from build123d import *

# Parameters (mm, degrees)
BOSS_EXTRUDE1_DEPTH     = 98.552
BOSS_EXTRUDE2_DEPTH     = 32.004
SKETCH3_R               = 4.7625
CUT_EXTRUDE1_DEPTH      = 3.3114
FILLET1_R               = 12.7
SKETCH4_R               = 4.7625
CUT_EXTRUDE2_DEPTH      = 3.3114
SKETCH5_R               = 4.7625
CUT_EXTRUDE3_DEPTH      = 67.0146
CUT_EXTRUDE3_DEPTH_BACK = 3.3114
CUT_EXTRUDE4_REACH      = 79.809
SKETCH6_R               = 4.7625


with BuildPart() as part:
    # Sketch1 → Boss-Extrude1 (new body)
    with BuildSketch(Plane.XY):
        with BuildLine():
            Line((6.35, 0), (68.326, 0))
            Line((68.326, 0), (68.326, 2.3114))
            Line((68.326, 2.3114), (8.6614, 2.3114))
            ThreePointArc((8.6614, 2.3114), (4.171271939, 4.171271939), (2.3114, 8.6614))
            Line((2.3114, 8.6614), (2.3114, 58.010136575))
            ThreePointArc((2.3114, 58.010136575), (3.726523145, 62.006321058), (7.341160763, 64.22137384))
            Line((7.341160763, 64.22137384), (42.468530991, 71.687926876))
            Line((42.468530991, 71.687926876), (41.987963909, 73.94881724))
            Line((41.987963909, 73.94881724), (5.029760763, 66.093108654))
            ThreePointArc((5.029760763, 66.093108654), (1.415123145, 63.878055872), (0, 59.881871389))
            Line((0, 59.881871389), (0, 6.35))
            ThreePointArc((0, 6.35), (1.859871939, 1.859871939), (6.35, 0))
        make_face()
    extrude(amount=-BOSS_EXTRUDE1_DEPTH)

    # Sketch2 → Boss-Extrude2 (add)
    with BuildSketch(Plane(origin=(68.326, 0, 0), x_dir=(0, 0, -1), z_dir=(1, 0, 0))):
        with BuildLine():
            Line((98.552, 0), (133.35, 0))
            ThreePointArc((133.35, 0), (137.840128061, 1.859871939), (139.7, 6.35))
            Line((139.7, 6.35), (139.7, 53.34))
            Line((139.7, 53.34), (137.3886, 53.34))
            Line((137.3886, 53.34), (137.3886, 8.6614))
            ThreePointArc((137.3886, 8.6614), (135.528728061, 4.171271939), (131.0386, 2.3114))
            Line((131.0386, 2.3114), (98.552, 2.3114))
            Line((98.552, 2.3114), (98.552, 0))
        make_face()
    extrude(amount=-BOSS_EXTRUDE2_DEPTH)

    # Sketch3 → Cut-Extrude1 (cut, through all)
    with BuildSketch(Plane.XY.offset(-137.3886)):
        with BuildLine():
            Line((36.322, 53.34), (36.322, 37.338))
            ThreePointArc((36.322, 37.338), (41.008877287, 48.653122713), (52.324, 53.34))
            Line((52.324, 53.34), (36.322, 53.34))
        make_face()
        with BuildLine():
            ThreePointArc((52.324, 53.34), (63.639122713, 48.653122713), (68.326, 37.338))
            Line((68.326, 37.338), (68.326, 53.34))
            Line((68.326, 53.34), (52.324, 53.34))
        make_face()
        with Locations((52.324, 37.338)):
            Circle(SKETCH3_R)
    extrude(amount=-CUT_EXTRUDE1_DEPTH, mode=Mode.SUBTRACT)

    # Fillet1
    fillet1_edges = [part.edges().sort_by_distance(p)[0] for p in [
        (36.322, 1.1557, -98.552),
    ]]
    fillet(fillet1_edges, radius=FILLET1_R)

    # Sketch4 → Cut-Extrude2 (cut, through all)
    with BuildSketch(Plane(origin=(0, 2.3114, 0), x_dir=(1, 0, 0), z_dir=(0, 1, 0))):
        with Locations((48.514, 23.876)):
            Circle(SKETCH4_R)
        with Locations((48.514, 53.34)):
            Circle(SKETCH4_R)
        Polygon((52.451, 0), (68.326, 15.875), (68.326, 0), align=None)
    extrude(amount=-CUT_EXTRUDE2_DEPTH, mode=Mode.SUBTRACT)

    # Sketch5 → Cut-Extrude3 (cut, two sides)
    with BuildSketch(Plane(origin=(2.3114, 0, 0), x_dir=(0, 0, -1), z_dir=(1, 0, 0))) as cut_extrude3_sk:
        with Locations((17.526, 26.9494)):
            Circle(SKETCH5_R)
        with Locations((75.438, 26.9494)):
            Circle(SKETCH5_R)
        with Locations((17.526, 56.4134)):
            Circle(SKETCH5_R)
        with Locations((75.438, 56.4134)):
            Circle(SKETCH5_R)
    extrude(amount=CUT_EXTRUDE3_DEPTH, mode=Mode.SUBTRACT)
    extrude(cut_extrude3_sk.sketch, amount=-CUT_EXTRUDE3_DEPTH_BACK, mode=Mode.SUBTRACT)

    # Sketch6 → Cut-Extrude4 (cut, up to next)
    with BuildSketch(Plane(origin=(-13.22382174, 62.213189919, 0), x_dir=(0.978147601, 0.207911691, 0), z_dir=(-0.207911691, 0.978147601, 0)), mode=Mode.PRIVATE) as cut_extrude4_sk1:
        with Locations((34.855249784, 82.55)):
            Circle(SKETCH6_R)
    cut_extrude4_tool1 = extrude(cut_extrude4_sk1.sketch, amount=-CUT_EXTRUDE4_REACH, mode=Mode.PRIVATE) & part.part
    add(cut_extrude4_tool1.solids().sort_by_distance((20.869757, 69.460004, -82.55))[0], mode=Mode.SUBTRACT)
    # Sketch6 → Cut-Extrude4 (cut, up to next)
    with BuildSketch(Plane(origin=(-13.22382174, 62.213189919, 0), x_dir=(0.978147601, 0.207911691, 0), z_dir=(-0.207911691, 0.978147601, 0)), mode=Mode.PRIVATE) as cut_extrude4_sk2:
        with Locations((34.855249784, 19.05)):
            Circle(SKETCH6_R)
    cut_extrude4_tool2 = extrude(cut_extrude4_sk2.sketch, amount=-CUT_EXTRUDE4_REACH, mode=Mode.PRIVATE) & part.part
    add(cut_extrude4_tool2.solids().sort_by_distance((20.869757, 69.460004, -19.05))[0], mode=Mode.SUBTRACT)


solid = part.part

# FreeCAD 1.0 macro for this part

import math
import FreeCAD as App
import Part
import Sketcher
from FreeCAD import Vector
Q = App.Units.Quantity


def edges_at(feature, points):
    """Names of the edges that pass closest to the given points."""
    edges = feature.Shape.Edges
    near = lambda p: min(range(len(edges)), key=lambda i: edges[i].distToShape(Part.Vertex(*p))[0])
    return sorted({f"Edge{near(p) + 1}" for p in points})


def add_polygon(sketch, points):
    """Adds a closed chain of lines whose ends are joined by coincident constraints."""
    first, n = sketch.GeometryCount, len(points)
    for a, b in zip(points, points[1:] + points[:1]):
        sketch.addGeometry(Part.LineSegment(App.Vector(*a, 0), App.Vector(*b, 0)), False)
    for i in range(n):
        sketch.addConstraint(Sketcher.Constraint("Coincident", first + i, 2, first + (i + 1) % n, 1))

doc = App.newDocument("Part")
body = doc.addObject("PartDesign::Body", "Body")

sketch1 = body.newObject("Sketcher::SketchObject", "Sketch")
sketch1.AttachmentSupport = (doc.getObject("XY_Plane"), [""])
sketch1.MapMode = "FlatFace"
sketch1.addGeometry([
    Part.LineSegment(Vector(6.35, 0, 0), Vector(68.326, 0, 0)),
    Part.LineSegment(Vector(68.326, 0, 0), Vector(68.326, 2.3114, 0)),
    Part.LineSegment(Vector(68.326, 2.3114, 0), Vector(8.6614, 2.3114, 0)),
    Part.ArcOfCircle(Part.Circle(Vector(8.6614, 8.6614, 0), Vector(0, 0, 1), 6.35), math.radians(180), math.radians(270)),
    Part.LineSegment(Vector(2.3114, 8.6614, 0), Vector(2.3114, 58.010137, 0)),
    Part.ArcOfCircle(Part.Circle(Vector(8.6614, 58.010137, 0), Vector(0, 0, 1), 6.35), math.radians(102), math.radians(180)),
    Part.LineSegment(Vector(7.341161, 64.221374, 0), Vector(42.468531, 71.687927, 0)),
    Part.LineSegment(Vector(42.468531, 71.687927, 0), Vector(41.987964, 73.948817, 0)),
    Part.LineSegment(Vector(41.987964, 73.948817, 0), Vector(5.029761, 66.093109, 0)),
    Part.ArcOfCircle(Part.Circle(Vector(6.35, 59.881871, 0), Vector(0, 0, 1), 6.35), math.radians(102), math.radians(180)),
    Part.LineSegment(Vector(0, 59.881871, 0), Vector(0, 6.35, 0)),
    Part.ArcOfCircle(Part.Circle(Vector(6.35, 6.35, 0), Vector(0, 0, 1), 6.35), math.radians(180), math.radians(270)),
], False)
sketch1.addConstraint([
    Sketcher.Constraint("Coincident", 0, 2, 1, 1),
    Sketcher.Constraint("Coincident", 1, 2, 2, 1),
    Sketcher.Constraint("Tangent", 2, 2, 3, 2),
    Sketcher.Constraint("Tangent", 3, 1, 4, 1),
    Sketcher.Constraint("Tangent", 4, 2, 5, 2),
    Sketcher.Constraint("Tangent", 5, 1, 6, 1),
    Sketcher.Constraint("Coincident", 6, 2, 7, 1),
    Sketcher.Constraint("Coincident", 7, 2, 8, 1),
    Sketcher.Constraint("Tangent", 8, 2, 9, 1),
    Sketcher.Constraint("Tangent", 9, 2, 10, 1),
    Sketcher.Constraint("Tangent", 10, 2, 11, 1),
    Sketcher.Constraint("Tangent", 11, 2, 0, 1),
    Sketcher.Constraint("Horizontal", 0),
    Sketcher.Constraint("Vertical", 1),
    Sketcher.Constraint("Horizontal", 2),
    Sketcher.Constraint("Vertical", 4),
    Sketcher.Constraint("Vertical", 10),
    Sketcher.Constraint("Equal", 3, 5),
    Sketcher.Constraint("Equal", 5, 9),
    Sketcher.Constraint("Equal", 9, 11),
    Sketcher.Constraint("PointOnObject", 0, 2, -1),
    Sketcher.Constraint("PointOnObject", 9, 2, -2),
    Sketcher.Constraint("Perpendicular", 6, 7),
    Sketcher.Constraint("Perpendicular", 7, 8),
    Sketcher.Constraint("Radius", 3, Q("0.25 in")),
    Sketcher.Constraint("Angle", 6, Q("12 deg")),
    Sketcher.Constraint("DistanceX", 0, 1, 0, 2, Q("2.44 in")),
    Sketcher.Constraint("DistanceX", 2, 2, 2, 1, Q("2.349 in")),
    Sketcher.Constraint("DistanceY", 1, 1, 1, 2, Q("0.091 in")),
    Sketcher.Constraint("Distance", 7, Q("0.091 in")),
    Sketcher.Constraint("DistanceY", 10, 2, 10, 1, 53.531871),
    Sketcher.Constraint("Distance", 8, 37.783871),
])
pad1 = body.newObject("PartDesign::Pad", "Pad")
pad1.Profile = sketch1
pad1.Length = Q("3.88 in")
pad1.Reversed = True

sketch2 = body.newObject("Sketcher::SketchObject", "Sketch001")
sketch2.AttachmentSupport = (doc.getObject("YZ_Plane"), [""])
sketch2.MapMode = "FlatFace"
sketch2.AttachmentOffset = App.Placement(Vector(0, 0, 2.69 * 25.4), App.Rotation())
sketch2.addGeometry([
    Part.LineSegment(Vector(0, -98.552, 0), Vector(0, -133.35, 0)),
    Part.ArcOfCircle(Part.Circle(Vector(6.35, -133.35, 0), Vector(0, 0, 1), 6.35), math.radians(180), math.radians(270)),
    Part.LineSegment(Vector(6.35, -139.7, 0), Vector(53.34, -139.7, 0)),
    Part.LineSegment(Vector(53.34, -139.7, 0), Vector(53.34, -137.3886, 0)),
    Part.LineSegment(Vector(53.34, -137.3886, 0), Vector(8.6614, -137.3886, 0)),
    Part.ArcOfCircle(Part.Circle(Vector(8.6614, -131.0386, 0), Vector(0, 0, 1), 6.35), math.radians(180), math.radians(270)),
    Part.LineSegment(Vector(2.3114, -131.0386, 0), Vector(2.3114, -98.552, 0)),
    Part.LineSegment(Vector(2.3114, -98.552, 0), Vector(0, -98.552, 0)),
], False)
sketch2.addConstraint([
    Sketcher.Constraint("Tangent", 0, 2, 1, 1),
    Sketcher.Constraint("Tangent", 1, 2, 2, 1),
    Sketcher.Constraint("Coincident", 2, 2, 3, 1),
    Sketcher.Constraint("Coincident", 3, 2, 4, 1),
    Sketcher.Constraint("Tangent", 4, 2, 5, 2),
    Sketcher.Constraint("Tangent", 5, 1, 6, 1),
    Sketcher.Constraint("Coincident", 6, 2, 7, 1),
    Sketcher.Constraint("Coincident", 7, 2, 0, 1),
    Sketcher.Constraint("Vertical", 0),
    Sketcher.Constraint("Horizontal", 2),
    Sketcher.Constraint("Vertical", 3),
    Sketcher.Constraint("Horizontal", 4),
    Sketcher.Constraint("Vertical", 6),
    Sketcher.Constraint("Horizontal", 7),
    Sketcher.Constraint("Equal", 1, 5),
    Sketcher.Constraint("PointOnObject", 0, 2, -2),
    Sketcher.Constraint("Equal", 7, 3),
    Sketcher.Constraint("Radius", 1, Q("0.25 in")),
    Sketcher.Constraint("DistanceX", 2, 1, 2, 2, Q("1.85 in")),
    Sketcher.Constraint("DistanceY", 0, 2, 0, 1, Q("1.37 in")),
    Sketcher.Constraint("DistanceY", 1, 2, -1, 1, Q("5.5 in")),
    Sketcher.Constraint("DistanceX", 4, 2, 4, 1, Q("1.759 in")),
])
pad2 = body.newObject("PartDesign::Pad", "Pad001")
pad2.Profile = sketch2
pad2.Length = Q("1.26 in")
pad2.Reversed = True

sketch3 = body.newObject("Sketcher::SketchObject", "Sketch002")
sketch3.AttachmentSupport = (doc.getObject("XY_Plane"), [""])
sketch3.MapMode = "FlatFace"
sketch3.AttachmentOffset = App.Placement(Vector(0, 0, -5.409 * 25.4), App.Rotation())
sketch3.addGeometry([
    Part.LineSegment(Vector(36.322, 53.34, 0), Vector(36.322, 37.338, 0)),
    Part.ArcOfCircle(Part.Circle(Vector(52.324, 37.338, 0), Vector(0, 0, 1), 16.002), math.radians(90), math.radians(180)),
    Part.LineSegment(Vector(52.324, 53.34, 0), Vector(36.322, 53.34, 0)),
    Part.ArcOfCircle(Part.Circle(Vector(52.324, 37.338, 0), Vector(0, 0, 1), 16.002), math.radians(0), math.radians(90)),
    Part.LineSegment(Vector(68.326, 37.338, 0), Vector(68.326, 53.34, 0)),
    Part.LineSegment(Vector(68.326, 53.34, 0), Vector(52.324, 53.34, 0)),
    Part.Circle(Vector(52.324, 37.338, 0), Vector(0, 0, 1), 4.7625),
], False)
sketch3.addConstraint([
    Sketcher.Constraint("Tangent", 0, 2, 1, 2),
    Sketcher.Constraint("Tangent", 1, 1, 2, 1),
    Sketcher.Constraint("Coincident", 2, 2, 0, 1),
    Sketcher.Constraint("Tangent", 3, 1, 4, 1),
    Sketcher.Constraint("Coincident", 4, 2, 5, 1),
    Sketcher.Constraint("Tangent", 5, 2, 3, 2),
    Sketcher.Constraint("Vertical", 0),
    Sketcher.Constraint("Horizontal", 2),
    Sketcher.Constraint("Vertical", 4),
    Sketcher.Constraint("Horizontal", 5),
    Sketcher.Constraint("Coincident", 3, 3, 1, 3),
    Sketcher.Constraint("Coincident", 6, 3, 1, 3),
    Sketcher.Constraint("Equal", 1, 3),
    Sketcher.Constraint("Radius", 1, Q("0.63 in")),
    Sketcher.Constraint("Diameter", 6, Q("0.375 in")),
    Sketcher.Constraint("DistanceY", -1, 1, 1, 1, Q("2.1 in")),
    Sketcher.Constraint("DistanceX", -1, 1, 1, 3, Q("2.06 in")),
])
pocket1 = body.newObject("PartDesign::Pocket", "Pocket")
pocket1.Profile = sketch3
pocket1.Type = "ThroughAll"
doc.recompute()

fillet = body.newObject("PartDesign::Fillet", "Fillet")
fillet.Base = (pocket1, edges_at(pocket1, [(36.322, 1.156, -98.552)]))
fillet.Radius = Q("0.5 in")

sketch4 = body.newObject("Sketcher::SketchObject", "Sketch003")
sketch4.AttachmentSupport = (doc.getObject("XZ_Plane"), [""])
sketch4.MapMode = "FlatFace"
sketch4.AttachmentOffset = App.Placement(Vector(0, 0, -0.091 * 25.4), App.Rotation())
sketch4.addGeometry(Part.Circle(Vector(48.514, -23.876, 0), Vector(0, 0, 1), 4.7625), False)
sketch4.addGeometry(Part.Circle(Vector(48.514, -53.34, 0), Vector(0, 0, 1), 4.7625), False)
add_polygon(sketch4, [(68.326, -15.875), (52.451, 0), (68.326, 0)])
sketch4.addConstraint([
    Sketcher.Constraint("Horizontal", 3),
    Sketcher.Constraint("Vertical", 4),
    Sketcher.Constraint("Equal", 0, 1),
    Sketcher.Constraint("PointOnObject", 2, 2, -1),
    Sketcher.Constraint("Vertical", 0, 3, 1, 3),
    Sketcher.Constraint("Equal", 3, 4),
    Sketcher.Constraint("Diameter", 0, Q("0.375 in")),
    Sketcher.Constraint("DistanceY", 1, 3, -1, 1, Q("2.1 in")),
    Sketcher.Constraint("DistanceX", 3, 1, 3, 2, Q("0.625 in")),
    Sketcher.Constraint("DistanceX", -1, 1, 0, 3, Q("1.91 in")),
    Sketcher.Constraint("DistanceY", 0, 3, -1, 1, Q("0.94 in")),
    Sketcher.Constraint("DistanceX", -1, 1, 3, 2, Q("2.69 in")),
])
pocket2 = body.newObject("PartDesign::Pocket", "Pocket001")
pocket2.Profile = sketch4
pocket2.Type = "ThroughAll"
pocket2.Reversed = True

sketch5 = body.newObject("Sketcher::SketchObject", "Sketch004")
sketch5.AttachmentSupport = (doc.getObject("YZ_Plane"), [""])
sketch5.MapMode = "FlatFace"
sketch5.AttachmentOffset = App.Placement(Vector(0, 0, 0.091 * 25.4), App.Rotation())
sketch5.addGeometry([
    Part.Circle(Vector(26.9494, -17.526, 0), Vector(0, 0, 1), 4.7625),
    Part.Circle(Vector(26.9494, -75.438, 0), Vector(0, 0, 1), 4.7625),
    Part.Circle(Vector(56.4134, -17.526, 0), Vector(0, 0, 1), 4.7625),
    Part.Circle(Vector(56.4134, -75.438, 0), Vector(0, 0, 1), 4.7625),
], False)
sketch5.addConstraint([
    Sketcher.Constraint("Equal", 0, 1),
    Sketcher.Constraint("Equal", 1, 2),
    Sketcher.Constraint("Equal", 2, 3),
    Sketcher.Constraint("Horizontal", 0, 3, 2, 3),
    Sketcher.Constraint("Horizontal", 1, 3, 3, 3),
    Sketcher.Constraint("Vertical", 0, 3, 1, 3),
    Sketcher.Constraint("Vertical", 2, 3, 3, 3),
    Sketcher.Constraint("Diameter", 0, Q("0.375 in")),
    Sketcher.Constraint("DistanceY", 0, 3, -1, 1, Q("0.69 in")),
    Sketcher.Constraint("DistanceY", 1, 3, -1, 1, Q("2.97 in")),
    Sketcher.Constraint("DistanceX", 0, 3, 2, 3, Q("1.16 in")),
    Sketcher.Constraint("DistanceX", -1, 1, 0, 3, Q("1.061 in")),
])
pocket3 = body.newObject("PartDesign::Pocket", "Pocket002")
pocket3.Profile = sketch5
pocket3.Type = "ThroughAll"
pocket3.Midplane = True

sketch6 = body.newObject("Sketcher::SketchObject", "Sketch005")
sketch6.Placement = App.Placement(Vector(-13.223822, 62.21319, 0), App.Rotation(Vector(0.978147601, 0.207911691, 0), Vector(0, 0, -1.000000001), Vector(-0.207911691, 0.978147601, 0), "ZXY"))
sketch6.addGeometry(Part.Circle(Vector(34.85525, 82.55, 0), Vector(0, 0, 1), 4.7625), False)
sketch6.addConstraint([
    Sketcher.Constraint("Diameter", 0, Q("0.375 in")),
    Sketcher.Constraint("DistanceY", -1, 1, 0, 3, Q("3.25 in")),
    Sketcher.Constraint("DistanceX", -1, 1, 0, 3, 34.85525),
])
pocket4 = body.newObject("PartDesign::Pocket", "Pocket003")
pocket4.Profile = sketch6
pocket4.Type = "UpToFirst"

sketch7 = body.newObject("Sketcher::SketchObject", "Sketch006")
sketch7.Placement = App.Placement(Vector(-13.223822, 62.21319, 0), App.Rotation(Vector(0.978147601, 0.207911691, 0), Vector(0, 0, -1.000000001), Vector(-0.207911691, 0.978147601, 0), "ZXY"))
sketch7.addGeometry(Part.Circle(Vector(34.85525, 19.05, 0), Vector(0, 0, 1), 4.7625), False)
sketch7.addConstraint([
    Sketcher.Constraint("Diameter", 0, Q("0.375 in")),
    Sketcher.Constraint("DistanceY", -1, 1, 0, 3, Q("0.75 in")),
    Sketcher.Constraint("DistanceX", -1, 1, 0, 3, 34.85525),
])
pocket5 = body.newObject("PartDesign::Pocket", "Pocket004")
pocket5.Profile = sketch7
pocket5.Type = "UpToFirst"

doc.recompute()
